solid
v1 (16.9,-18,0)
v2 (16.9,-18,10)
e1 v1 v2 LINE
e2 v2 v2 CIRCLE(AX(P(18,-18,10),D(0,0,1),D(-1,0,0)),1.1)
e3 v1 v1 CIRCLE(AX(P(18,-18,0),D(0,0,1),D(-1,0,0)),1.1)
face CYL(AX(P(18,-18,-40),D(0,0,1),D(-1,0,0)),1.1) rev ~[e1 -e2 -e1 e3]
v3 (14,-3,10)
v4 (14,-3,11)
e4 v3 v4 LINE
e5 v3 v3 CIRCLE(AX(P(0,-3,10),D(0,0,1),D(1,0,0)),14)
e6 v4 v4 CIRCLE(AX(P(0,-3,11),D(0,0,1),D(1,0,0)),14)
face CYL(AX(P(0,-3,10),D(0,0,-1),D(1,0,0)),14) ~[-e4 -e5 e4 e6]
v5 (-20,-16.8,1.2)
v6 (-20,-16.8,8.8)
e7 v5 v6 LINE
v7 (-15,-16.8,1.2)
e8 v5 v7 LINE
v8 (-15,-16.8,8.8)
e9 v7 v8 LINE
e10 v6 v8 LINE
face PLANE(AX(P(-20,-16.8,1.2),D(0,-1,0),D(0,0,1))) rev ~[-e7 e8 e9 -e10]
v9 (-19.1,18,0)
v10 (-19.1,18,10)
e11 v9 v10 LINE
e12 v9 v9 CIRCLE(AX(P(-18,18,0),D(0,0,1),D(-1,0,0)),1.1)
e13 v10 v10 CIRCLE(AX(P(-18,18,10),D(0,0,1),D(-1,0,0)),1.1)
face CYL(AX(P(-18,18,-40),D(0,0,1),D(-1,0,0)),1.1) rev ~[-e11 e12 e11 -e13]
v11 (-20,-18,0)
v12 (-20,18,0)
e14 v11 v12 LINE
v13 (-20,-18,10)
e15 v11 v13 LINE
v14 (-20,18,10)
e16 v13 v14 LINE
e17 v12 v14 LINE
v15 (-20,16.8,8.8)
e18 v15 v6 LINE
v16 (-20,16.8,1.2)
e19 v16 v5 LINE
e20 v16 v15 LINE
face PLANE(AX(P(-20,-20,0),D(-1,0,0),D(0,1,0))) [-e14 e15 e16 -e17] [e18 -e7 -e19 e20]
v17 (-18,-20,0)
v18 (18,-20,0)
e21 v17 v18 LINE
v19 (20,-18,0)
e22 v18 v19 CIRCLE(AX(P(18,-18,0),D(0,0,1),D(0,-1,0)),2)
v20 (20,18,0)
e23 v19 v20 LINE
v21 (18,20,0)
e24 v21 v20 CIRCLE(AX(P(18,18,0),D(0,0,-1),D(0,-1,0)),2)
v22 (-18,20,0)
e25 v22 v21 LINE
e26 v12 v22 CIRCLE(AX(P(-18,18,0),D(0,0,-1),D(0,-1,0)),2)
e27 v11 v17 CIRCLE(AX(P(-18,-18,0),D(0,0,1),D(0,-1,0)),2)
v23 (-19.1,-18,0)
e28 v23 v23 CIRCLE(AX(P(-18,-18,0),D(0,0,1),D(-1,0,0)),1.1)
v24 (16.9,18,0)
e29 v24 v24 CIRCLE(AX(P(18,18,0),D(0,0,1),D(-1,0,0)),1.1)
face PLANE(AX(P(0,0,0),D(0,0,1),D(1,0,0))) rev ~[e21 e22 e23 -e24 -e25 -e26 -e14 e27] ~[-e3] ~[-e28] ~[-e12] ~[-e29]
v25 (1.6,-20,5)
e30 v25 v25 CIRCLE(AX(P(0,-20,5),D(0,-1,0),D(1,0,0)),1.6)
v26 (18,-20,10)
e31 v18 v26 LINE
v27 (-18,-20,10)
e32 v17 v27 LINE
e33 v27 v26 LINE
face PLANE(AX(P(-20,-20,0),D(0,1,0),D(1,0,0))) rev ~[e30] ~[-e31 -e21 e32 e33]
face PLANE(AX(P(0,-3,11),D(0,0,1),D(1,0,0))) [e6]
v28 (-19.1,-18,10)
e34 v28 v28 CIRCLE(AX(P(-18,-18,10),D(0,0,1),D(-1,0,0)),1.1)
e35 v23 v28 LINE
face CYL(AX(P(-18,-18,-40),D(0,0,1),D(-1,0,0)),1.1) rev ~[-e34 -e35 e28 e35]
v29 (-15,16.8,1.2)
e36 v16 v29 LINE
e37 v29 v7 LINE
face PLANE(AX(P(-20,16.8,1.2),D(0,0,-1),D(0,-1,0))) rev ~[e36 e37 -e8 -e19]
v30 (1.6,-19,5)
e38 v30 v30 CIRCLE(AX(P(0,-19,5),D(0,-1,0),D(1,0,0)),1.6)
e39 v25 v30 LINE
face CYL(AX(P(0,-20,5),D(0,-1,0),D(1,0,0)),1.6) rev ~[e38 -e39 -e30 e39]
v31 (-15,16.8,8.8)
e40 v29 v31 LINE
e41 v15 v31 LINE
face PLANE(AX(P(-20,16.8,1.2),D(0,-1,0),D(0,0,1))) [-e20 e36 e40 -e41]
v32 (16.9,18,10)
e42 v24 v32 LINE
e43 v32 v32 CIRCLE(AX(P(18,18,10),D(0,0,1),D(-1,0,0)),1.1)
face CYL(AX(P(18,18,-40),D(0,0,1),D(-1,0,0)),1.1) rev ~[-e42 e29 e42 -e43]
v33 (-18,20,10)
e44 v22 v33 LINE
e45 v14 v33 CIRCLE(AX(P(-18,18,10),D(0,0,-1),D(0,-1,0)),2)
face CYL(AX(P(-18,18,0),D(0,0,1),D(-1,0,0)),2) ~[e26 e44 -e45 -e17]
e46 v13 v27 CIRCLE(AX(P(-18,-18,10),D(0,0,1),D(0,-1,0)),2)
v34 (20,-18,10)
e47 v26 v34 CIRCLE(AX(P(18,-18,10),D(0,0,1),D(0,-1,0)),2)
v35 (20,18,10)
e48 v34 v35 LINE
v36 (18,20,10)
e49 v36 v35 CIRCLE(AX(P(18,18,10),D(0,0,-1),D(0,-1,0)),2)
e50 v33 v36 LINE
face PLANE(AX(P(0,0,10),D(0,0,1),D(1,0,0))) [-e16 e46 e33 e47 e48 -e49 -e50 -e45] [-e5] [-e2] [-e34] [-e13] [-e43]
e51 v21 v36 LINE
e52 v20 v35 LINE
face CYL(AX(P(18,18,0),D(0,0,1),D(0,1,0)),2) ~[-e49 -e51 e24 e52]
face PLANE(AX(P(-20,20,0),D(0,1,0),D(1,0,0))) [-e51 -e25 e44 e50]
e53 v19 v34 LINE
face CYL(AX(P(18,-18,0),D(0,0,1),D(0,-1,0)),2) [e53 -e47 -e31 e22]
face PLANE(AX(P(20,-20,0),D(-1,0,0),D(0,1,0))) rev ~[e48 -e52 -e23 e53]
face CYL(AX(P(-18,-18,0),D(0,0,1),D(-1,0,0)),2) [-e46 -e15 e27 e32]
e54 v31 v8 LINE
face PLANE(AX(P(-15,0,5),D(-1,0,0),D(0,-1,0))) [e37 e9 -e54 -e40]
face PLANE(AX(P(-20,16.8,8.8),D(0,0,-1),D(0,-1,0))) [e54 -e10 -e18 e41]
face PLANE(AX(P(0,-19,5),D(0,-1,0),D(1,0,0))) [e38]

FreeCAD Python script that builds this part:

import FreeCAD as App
import Part
import Sketcher


def edges_at(feature, points):
    """Names of the edges that pass closest to the given points."""
    edges = feature.Shape.Edges
    near = lambda p: min(range(len(edges)), key=lambda i: edges[i].distToShape(Part.Vertex(*p))[0])
    return sorted({f"Edge{near(p) + 1}" for p in points})


def add_polygon(sketch, points):
    """Adds a closed chain of lines whose ends are joined by coincident constraints."""
    first, n = sketch.GeometryCount, len(points)
    for a, b in zip(points, points[1:] + points[:1]):
        sketch.addGeometry(Part.LineSegment(App.Vector(*a, 0), App.Vector(*b, 0)), False)
    for i in range(n):
        sketch.addConstraint(Sketcher.Constraint("Coincident", first + i, 2, first + (i + 1) % n, 1))

doc = App.newDocument("Part")
params = doc.addObject("Spreadsheet::Sheet", "Params")
for row, (alias, value) in enumerate([
    ("sketch1_width", "40 mm"),
    ("pad1_length", "10 mm"),
    ("sketch2_diameter", "2.2 mm"),
    ("hole_diameter", "2.2 mm"),
    ("hole_depth", "40 mm"),
    ("fillet_radius", "2 mm"),
    ("sketch3_diameter", "28 mm"),
    ("pad2_length", "1 mm"),
    ("sketch4_width", "33.6 mm"),
    ("sketch4_height", "7.6 mm"),
    ("pocket1_length", "5 mm"),
    ("sketch5_diameter", "3.2 mm"),
    ("pocket2_length", "1 mm"),
], start=1):
    params.set(f"A{row}", alias)
    params.set(f"B{row}", "=" + value)
    params.setAlias(f"B{row}", alias)

body = doc.addObject("PartDesign::Body", "Body")

sketch1 = doc.addObject("Sketcher::SketchObject", "Sketch")
body.addObject(sketch1)
sketch1.AttachmentSupport = (doc.XY_Plane, [""])
sketch1.MapMode = "FlatFace"
add_polygon(sketch1, [(-20, 20), (-20, -20), (20, -20), (20, 20)])
sketch1.addConstraint([
    Sketcher.Constraint("Vertical", 0),
    Sketcher.Constraint("Horizontal", 1),
    Sketcher.Constraint("Vertical", 2),
    Sketcher.Constraint("Horizontal", 3),
    Sketcher.Constraint("Symmetric", 0, 2, 2, 2, -1, 1),
    Sketcher.Constraint("Equal", 3, 0),
    Sketcher.Constraint("DistanceX", 1, 1, 1, 2, 40.0),
])
sketch1.setExpression("Constraints[10]", "Params.sketch1_width")
pad1 = doc.addObject("PartDesign::Pad", "Pad")
body.addObject(pad1)
pad1.Profile = sketch1
pad1.setExpression("Length", "Params.pad1_length")

sketch2 = doc.addObject("Sketcher::SketchObject", "Sketch001")
body.addObject(sketch2)
sketch2.AttachmentSupport = (doc.XY_Plane, [""])
sketch2.MapMode = "FlatFace"
sketch2.addGeometry([
    Part.Circle(App.Vector(-18, 18, 0), App.Vector(0, 0, 1), 1.1),
    Part.Circle(App.Vector(-18, -18, 0), App.Vector(0, 0, 1), 1.1),
    Part.Circle(App.Vector(18, -18, 0), App.Vector(0, 0, 1), 1.1),
    Part.Circle(App.Vector(18, 18, 0), App.Vector(0, 0, 1), 1.1),
], False)
sketch2.addConstraint([
    Sketcher.Constraint("Equal", 0, 1),
    Sketcher.Constraint("Equal", 1, 2),
    Sketcher.Constraint("Equal", 2, 3),
    Sketcher.Constraint("Symmetric", 0, 3, 2, 3, -1, 1),
    Sketcher.Constraint("Symmetric", 1, 3, 3, 3, -1, 1),
    Sketcher.Constraint("Symmetric", 1, 3, 2, 3, -2),
    Sketcher.Constraint("Diameter", 0, 2.2),
    Sketcher.Constraint("DistanceX", 0, 3, -1, 1, 18.0),
    Sketcher.Constraint("DistanceY", -1, 1, 0, 3, 18.0),
])
sketch2.setExpression("Constraints[6]", "Params.sketch2_diameter")
doc.recompute()
hole = doc.addObject("PartDesign::Hole", "Hole")
body.addObject(hole)
hole.Profile = sketch2
hole.ThreadType = "None"
hole.setExpression("Diameter", "Params.hole_diameter")
hole.DepthType = "Dimension"
hole.setExpression("Depth", "Params.hole_depth")
hole.DrillPoint = "Flat"
hole.Reversed = True
doc.recompute()

fillet = doc.addObject("PartDesign::Fillet", "Fillet")
body.addObject(fillet)
fillet.Base = (hole, edges_at(hole, [
    (-20, -20, 5),
    (-20, 20, 5),
    (20, -20, 5),
    (20, 20, 5),
]))
fillet.setExpression("Radius", "Params.fillet_radius")

sketch3 = doc.addObject("Sketcher::SketchObject", "Sketch002")
body.addObject(sketch3)
sketch3.AttachmentSupport = (doc.XY_Plane, [""])
sketch3.MapMode = "FlatFace"
sketch3.AttachmentOffset = App.Placement(App.Vector(0, 0, 10), App.Rotation())
sketch3.addGeometry(Part.Circle(App.Vector(0, -3, 0), App.Vector(0, 0, 1), 14), False)
sketch3.addConstraint([
    Sketcher.Constraint("PointOnObject", 0, 3, -2),
    Sketcher.Constraint("Diameter", 0, 28.0),
    Sketcher.Constraint("DistanceY", 0, 3, -1, 1, 3.0),
])
sketch3.setExpression("Constraints[1]", "Params.sketch3_diameter")
pad2 = doc.addObject("PartDesign::Pad", "Pad001")
body.addObject(pad2)
pad2.Profile = sketch3
pad2.setExpression("Length", "Params.pad2_length")

sketch4 = doc.addObject("Sketcher::SketchObject", "Sketch003")
body.addObject(sketch4)
sketch4.AttachmentSupport = (doc.YZ_Plane, [""])
sketch4.MapMode = "FlatFace"
sketch4.AttachmentOffset = App.Placement(App.Vector(0, 0, -20), App.Rotation())
add_polygon(sketch4, [(17, 9), (17, 1), (-17, 1), (-17, 9)])
sketch4.addConstraint([
    Sketcher.Constraint("Vertical", 0),
    Sketcher.Constraint("Horizontal", 1),
    Sketcher.Constraint("Vertical", 2),
    Sketcher.Constraint("Horizontal", 3),
    Sketcher.Constraint("DistanceX", 1, 2, 1, 1, 33.6),
    Sketcher.Constraint("DistanceY", 0, 2, 0, 1, 7.6),
    Sketcher.Constraint("DistanceX", -1, 1, 0, 2, 16.8),
    Sketcher.Constraint("DistanceY", -1, 1, 0, 2, 1.2),
])
sketch4.setExpression("Constraints[8]", "Params.sketch4_width")
sketch4.setExpression("Constraints[9]", "Params.sketch4_height")
pocket1 = doc.addObject("PartDesign::Pocket", "Pocket")
body.addObject(pocket1)
pocket1.Profile = sketch4
pocket1.setExpression("Length", "Params.pocket1_length")
pocket1.Reversed = True

sketch5 = doc.addObject("Sketcher::SketchObject", "Sketch004")
body.addObject(sketch5)
sketch5.AttachmentSupport = (doc.XZ_Plane, [""])
sketch5.MapMode = "FlatFace"
sketch5.AttachmentOffset = App.Placement(App.Vector(0, 0, 20), App.Rotation())
sketch5.addGeometry(Part.Circle(App.Vector(0, 5, 0), App.Vector(0, 0, 1), 1.6), False)
sketch5.addConstraint([
    Sketcher.Constraint("PointOnObject", 0, 3, -2),
    Sketcher.Constraint("Diameter", 0, 3.2),
    Sketcher.Constraint("DistanceY", -1, 1, 0, 3, 5.0),
])
sketch5.setExpression("Constraints[1]", "Params.sketch5_diameter")
pocket2 = doc.addObject("PartDesign::Pocket", "Pocket001")
body.addObject(pocket2)
pocket2.Profile = sketch5
pocket2.setExpression("Length", "Params.pocket2_length")

doc.recompute()
